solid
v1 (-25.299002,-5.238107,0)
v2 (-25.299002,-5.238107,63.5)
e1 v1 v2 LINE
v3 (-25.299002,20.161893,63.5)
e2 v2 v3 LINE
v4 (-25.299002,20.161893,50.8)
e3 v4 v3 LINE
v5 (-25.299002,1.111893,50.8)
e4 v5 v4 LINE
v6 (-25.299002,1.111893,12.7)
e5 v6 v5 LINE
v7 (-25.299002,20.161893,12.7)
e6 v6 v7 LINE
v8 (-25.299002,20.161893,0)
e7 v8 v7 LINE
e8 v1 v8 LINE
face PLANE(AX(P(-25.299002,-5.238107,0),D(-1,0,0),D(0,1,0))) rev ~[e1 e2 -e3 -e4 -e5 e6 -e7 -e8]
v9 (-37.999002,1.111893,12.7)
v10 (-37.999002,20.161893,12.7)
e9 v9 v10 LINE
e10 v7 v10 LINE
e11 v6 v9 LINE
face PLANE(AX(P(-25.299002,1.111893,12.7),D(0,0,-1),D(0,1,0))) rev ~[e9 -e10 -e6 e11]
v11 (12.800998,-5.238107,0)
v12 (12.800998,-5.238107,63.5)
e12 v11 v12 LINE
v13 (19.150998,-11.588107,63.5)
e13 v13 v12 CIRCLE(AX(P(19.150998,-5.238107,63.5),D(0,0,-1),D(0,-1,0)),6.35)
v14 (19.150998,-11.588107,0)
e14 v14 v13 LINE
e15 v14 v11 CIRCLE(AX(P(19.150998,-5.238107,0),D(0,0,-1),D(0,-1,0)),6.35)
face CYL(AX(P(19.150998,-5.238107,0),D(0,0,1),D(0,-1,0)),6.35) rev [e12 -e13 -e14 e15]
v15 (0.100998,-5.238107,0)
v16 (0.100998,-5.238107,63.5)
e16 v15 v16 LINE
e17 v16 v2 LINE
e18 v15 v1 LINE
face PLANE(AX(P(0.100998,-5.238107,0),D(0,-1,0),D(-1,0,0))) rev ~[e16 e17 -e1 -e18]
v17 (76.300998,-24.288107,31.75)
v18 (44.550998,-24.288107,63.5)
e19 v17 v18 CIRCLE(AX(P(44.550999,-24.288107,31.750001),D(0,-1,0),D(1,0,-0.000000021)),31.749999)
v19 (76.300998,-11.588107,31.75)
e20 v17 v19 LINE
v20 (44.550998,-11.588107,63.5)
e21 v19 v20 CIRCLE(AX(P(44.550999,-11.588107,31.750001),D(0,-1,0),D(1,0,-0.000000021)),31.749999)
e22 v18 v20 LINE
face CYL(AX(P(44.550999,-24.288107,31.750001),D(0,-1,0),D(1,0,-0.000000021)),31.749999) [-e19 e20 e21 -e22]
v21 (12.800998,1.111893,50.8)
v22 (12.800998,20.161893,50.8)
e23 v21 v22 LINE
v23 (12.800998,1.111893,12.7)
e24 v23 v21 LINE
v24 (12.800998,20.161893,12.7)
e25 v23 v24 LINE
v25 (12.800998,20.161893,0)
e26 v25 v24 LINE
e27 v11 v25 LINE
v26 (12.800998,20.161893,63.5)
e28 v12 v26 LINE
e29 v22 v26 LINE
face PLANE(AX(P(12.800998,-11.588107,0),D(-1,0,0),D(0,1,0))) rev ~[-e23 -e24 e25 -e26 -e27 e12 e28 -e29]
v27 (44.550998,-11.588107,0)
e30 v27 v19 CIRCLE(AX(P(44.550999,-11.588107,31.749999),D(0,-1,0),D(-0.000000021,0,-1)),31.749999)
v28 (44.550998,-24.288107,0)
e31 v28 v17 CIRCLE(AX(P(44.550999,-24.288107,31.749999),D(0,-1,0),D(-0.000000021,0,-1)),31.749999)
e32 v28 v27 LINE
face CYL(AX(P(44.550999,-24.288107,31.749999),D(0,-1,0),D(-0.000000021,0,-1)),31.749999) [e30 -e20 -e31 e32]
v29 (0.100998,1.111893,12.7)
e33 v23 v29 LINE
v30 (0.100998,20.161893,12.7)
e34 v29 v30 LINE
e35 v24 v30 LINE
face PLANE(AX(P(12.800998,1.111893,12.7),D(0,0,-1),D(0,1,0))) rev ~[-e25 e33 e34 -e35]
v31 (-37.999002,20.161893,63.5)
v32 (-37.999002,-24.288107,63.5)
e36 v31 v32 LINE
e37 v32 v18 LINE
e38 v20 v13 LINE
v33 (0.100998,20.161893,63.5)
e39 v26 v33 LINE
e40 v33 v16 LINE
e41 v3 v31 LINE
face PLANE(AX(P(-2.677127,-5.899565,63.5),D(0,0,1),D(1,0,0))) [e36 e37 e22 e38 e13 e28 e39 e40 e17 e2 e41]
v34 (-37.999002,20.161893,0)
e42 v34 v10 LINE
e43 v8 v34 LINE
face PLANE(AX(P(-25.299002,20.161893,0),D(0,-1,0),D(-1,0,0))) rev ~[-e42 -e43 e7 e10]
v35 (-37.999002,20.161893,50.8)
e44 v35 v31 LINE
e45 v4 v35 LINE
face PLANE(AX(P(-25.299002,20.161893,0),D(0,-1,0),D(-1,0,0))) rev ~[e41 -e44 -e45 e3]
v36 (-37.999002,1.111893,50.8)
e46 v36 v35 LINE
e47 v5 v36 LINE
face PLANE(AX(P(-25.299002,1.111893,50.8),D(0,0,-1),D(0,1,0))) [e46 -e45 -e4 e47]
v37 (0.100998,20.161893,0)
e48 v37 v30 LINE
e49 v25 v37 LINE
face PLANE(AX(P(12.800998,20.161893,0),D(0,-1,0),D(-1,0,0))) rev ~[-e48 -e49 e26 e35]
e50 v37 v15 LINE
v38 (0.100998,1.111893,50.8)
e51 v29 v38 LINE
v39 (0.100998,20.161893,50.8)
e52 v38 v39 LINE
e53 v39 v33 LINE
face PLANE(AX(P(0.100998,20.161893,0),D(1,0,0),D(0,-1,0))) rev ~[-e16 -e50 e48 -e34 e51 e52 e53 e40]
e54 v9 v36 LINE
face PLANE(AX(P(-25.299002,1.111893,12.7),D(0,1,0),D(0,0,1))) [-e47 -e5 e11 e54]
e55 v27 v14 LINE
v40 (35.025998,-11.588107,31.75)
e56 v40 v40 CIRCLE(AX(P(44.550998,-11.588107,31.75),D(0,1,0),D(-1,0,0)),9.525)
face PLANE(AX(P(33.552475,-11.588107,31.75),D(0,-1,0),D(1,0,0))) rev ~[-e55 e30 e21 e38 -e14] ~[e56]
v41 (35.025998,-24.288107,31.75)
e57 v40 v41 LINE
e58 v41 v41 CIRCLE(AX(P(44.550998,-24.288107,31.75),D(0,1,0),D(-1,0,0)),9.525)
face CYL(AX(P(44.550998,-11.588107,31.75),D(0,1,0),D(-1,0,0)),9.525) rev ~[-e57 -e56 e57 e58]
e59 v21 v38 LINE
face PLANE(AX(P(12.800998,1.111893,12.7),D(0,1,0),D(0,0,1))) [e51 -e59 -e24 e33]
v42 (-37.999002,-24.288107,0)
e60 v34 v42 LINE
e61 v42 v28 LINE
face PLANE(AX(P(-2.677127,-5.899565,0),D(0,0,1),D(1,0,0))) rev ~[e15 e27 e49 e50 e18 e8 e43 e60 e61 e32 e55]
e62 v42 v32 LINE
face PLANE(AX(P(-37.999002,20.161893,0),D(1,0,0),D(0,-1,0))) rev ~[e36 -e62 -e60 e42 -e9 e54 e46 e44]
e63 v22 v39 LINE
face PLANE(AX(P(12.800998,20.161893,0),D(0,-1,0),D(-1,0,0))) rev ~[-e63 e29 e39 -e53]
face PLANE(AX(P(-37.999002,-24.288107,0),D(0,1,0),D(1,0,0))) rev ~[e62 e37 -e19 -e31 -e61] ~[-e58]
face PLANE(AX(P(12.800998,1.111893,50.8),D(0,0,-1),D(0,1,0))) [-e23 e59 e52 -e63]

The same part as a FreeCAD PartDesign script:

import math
import FreeCAD as App
import Part
import Sketcher

V = App.Vector
Q = App.Units.Quantity


def edges_at(feature, points):
    """Names of the edges that pass closest to the given points."""
    edges = feature.Shape.Edges
    near = lambda p: min(range(len(edges)), key=lambda i: edges[i].distToShape(Part.Vertex(*p))[0])
    return sorted({f"Edge{near(p) + 1}" for p in points})


def add_polygon(sketch, points):
    """Adds a closed chain of lines whose ends are joined by coincident constraints."""
    first, n = sketch.GeometryCount, len(points)
    for a, b in zip(points, points[1:] + points[:1]):
        sketch.addGeometry(Part.LineSegment(App.Vector(*a, 0), App.Vector(*b, 0)), False)
    for i in range(n):
        sketch.addConstraint(Sketcher.Constraint("Coincident", first + i, 2, first + (i + 1) % n, 1))

doc = App.newDocument("Part")
body = doc.addObject("PartDesign::Body", "Body")

# Sketch on XY plane
sketch1 = doc.addObject("Sketcher::SketchObject", "Sketch")
body.addObject(sketch1)
sketch1.AttachmentSupport = (doc.XY_Plane, [""])
sketch1.MapMode = "FlatFace"
add_polygon(sketch1, [(-25, 20), (-38, 20), (-38, -24), (45, -24), (45, -12), (13, -12), (13, 20), (0, 20), (0, -5), (-25, -5)])  # lines 0-9
sketch1.addConstraint(Sketcher.Constraint("Horizontal", 0))
sketch1.addConstraint(Sketcher.Constraint("Vertical", 1))
sketch1.addConstraint(Sketcher.Constraint("Horizontal", 2))
sketch1.addConstraint(Sketcher.Constraint("Vertical", 3))
sketch1.addConstraint(Sketcher.Constraint("Horizontal", 4))
sketch1.addConstraint(Sketcher.Constraint("Vertical", 5))
sketch1.addConstraint(Sketcher.Constraint("Horizontal", 6))
sketch1.addConstraint(Sketcher.Constraint("Vertical", 7))
sketch1.addConstraint(Sketcher.Constraint("Horizontal", 8))
sketch1.addConstraint(Sketcher.Constraint("Vertical", 9))
sketch1.addConstraint(Sketcher.Constraint("Horizontal", 0, 2, 5, 2))
sketch1.addConstraint(Sketcher.Constraint("Equal", 0, 6))
sketch1.addConstraint(Sketcher.Constraint("Equal", 6, 3))
sketch1.addConstraint(Sketcher.Constraint("Equal", 4, 5))
sketch1.addConstraint(Sketcher.Constraint("Equal", 8, 7))
sketch1.addConstraint(Sketcher.Constraint("DistanceX", 8, 2, 8, 1, Q("1 in")))
sketch1.addConstraint(Sketcher.Constraint("DistanceX", 0, 2, 0, 1, Q("0.5 in")))
sketch1.addConstraint(Sketcher.Constraint("DistanceX", 2, 1, 2, 2, Q("3.25 in")))
sketch1.addConstraint(Sketcher.Constraint("DistanceX", 0, 2, -1, 1, 37.999002))
sketch1.addConstraint(Sketcher.Constraint("DistanceY", -1, 1, 0, 2, 20.161893))
pad1 = doc.addObject("PartDesign::Pad", "Pad")
body.addObject(pad1)
pad1.Profile = sketch1
pad1.Length = Q("2.5 in")

# Sketch on XZ plane
sketch2 = doc.addObject("Sketcher::SketchObject", "Sketch001")
body.addObject(sketch2)
sketch2.AttachmentSupport = (doc.XZ_Plane, [""])
sketch2.MapMode = "FlatFace"
sketch2.AttachmentOffset = App.Placement(V(0, 0, 24.288107), App.Rotation())
sketch2.addGeometry(Part.ArcOfCircle(Part.Circle(V(45, 32, 0), V(0, 0, 1), 32), math.radians(90), math.radians(270)), False)
sketch2.addGeometry(Part.ArcOfCircle(Part.Circle(V(45, 32, 0), V(0, 0, 1), 32), math.radians(-90), math.radians(0)), False)
sketch2.addGeometry(Part.ArcOfCircle(Part.Circle(V(45, 32, 0), V(0, 0, 1), 32), math.radians(0), math.radians(90)), False)
sketch2.addConstraint(Sketcher.Constraint("Tangent", 0, 2, 1, 1))
sketch2.addConstraint(Sketcher.Constraint("Tangent", 1, 2, 2, 1))
sketch2.addConstraint(Sketcher.Constraint("Tangent", 2, 2, 0, 1))
sketch2.addConstraint(Sketcher.Constraint("PointOnObject", 0, 2, -1))
sketch2.addConstraint(Sketcher.Constraint("Horizontal", 2, 3, 1, 2))
sketch2.addConstraint(Sketcher.Constraint("Vertical", 2, 3, 0, 2))
sketch2.addConstraint(Sketcher.Constraint("Vertical", 0, 2, 2, 2))
sketch2.addConstraint(Sketcher.Constraint("Radius", 0, Q("1.25 in")))
sketch2.addConstraint(Sketcher.Constraint("DistanceX", -1, 1, 1, 3, 44.550999))
pad2 = doc.addObject("PartDesign::Pad", "Pad001")
body.addObject(pad2)
pad2.Profile = sketch2
pad2.Length = Q("0.5 in")
pad2.Reversed = True

# Sketch on XZ plane
sketch3 = doc.addObject("Sketcher::SketchObject", "Sketch002")
body.addObject(sketch3)
sketch3.AttachmentSupport = (doc.XZ_Plane, [""])
sketch3.MapMode = "FlatFace"
sketch3.AttachmentOffset = App.Placement(V(0, 0, 11.588107), App.Rotation())
sketch3.addGeometry(Part.Circle(V(45, 32, 0), V(0, 0, 1), 10), False)
sketch3.addConstraint(Sketcher.Constraint("Diameter", 0, Q("0.75 in")))
sketch3.addConstraint(Sketcher.Constraint("DistanceY", -1, 1, 0, 3, Q("1.25 in")))
sketch3.addConstraint(Sketcher.Constraint("DistanceX", -1, 1, 0, 3, 44.550998))
pocket1 = doc.addObject("PartDesign::Pocket", "Pocket")
body.addObject(pocket1)
pocket1.Profile = sketch3
pocket1.Length = Q("1 in")
pocket1.Reversed = True

# Sketch on YZ plane
sketch4 = doc.addObject("Sketcher::SketchObject", "Sketch003")
body.addObject(sketch4)
sketch4.AttachmentSupport = (doc.YZ_Plane, [""])
sketch4.MapMode = "FlatFace"
sketch4.AttachmentOffset = App.Placement(V(0, 0, 12.800998), App.Rotation())
add_polygon(sketch4, [(1, 51), (1, 13), (20, 13), (20, 51)])  # lines 0-3
sketch4.addConstraint(Sketcher.Constraint("Vertical", 0))
sketch4.addConstraint(Sketcher.Constraint("Horizontal", 1))
sketch4.addConstraint(Sketcher.Constraint("Vertical", 2))
sketch4.addConstraint(Sketcher.Constraint("Horizontal", 3))
sketch4.addConstraint(Sketcher.Constraint("DistanceY", 0, 2, 0, 1, Q("1.5 in")))
sketch4.addConstraint(Sketcher.Constraint("DistanceY", -1, 1, 2, 2, Q("2 in")))
sketch4.addConstraint(Sketcher.Constraint("DistanceX", 1, 1, 1, 2, Q("0.75 in")))
sketch4.addConstraint(Sketcher.Constraint("DistanceX", -1, 1, 0, 2, 1.111893))
pocket2 = doc.addObject("PartDesign::Pocket", "Pocket001")
body.addObject(pocket2)
pocket2.Profile = sketch4
pocket2.Length = Q("1 in")

# Sketch on YZ plane
sketch5 = doc.addObject("Sketcher::SketchObject", "Sketch004")
body.addObject(sketch5)
sketch5.AttachmentSupport = (doc.YZ_Plane, [""])
sketch5.MapMode = "FlatFace"
sketch5.AttachmentOffset = App.Placement(V(0, 0, -25.299002), App.Rotation())
add_polygon(sketch5, [(1, 51), (1, 13), (20, 13), (20, 51)])  # lines 0-3
sketch5.addConstraint(Sketcher.Constraint("Vertical", 0))
sketch5.addConstraint(Sketcher.Constraint("Horizontal", 1))
sketch5.addConstraint(Sketcher.Constraint("Vertical", 2))
sketch5.addConstraint(Sketcher.Constraint("Horizontal", 3))
sketch5.addConstraint(Sketcher.Constraint("DistanceY", 0, 2, 0, 1, Q("1.5 in")))
sketch5.addConstraint(Sketcher.Constraint("DistanceY", -1, 1, 2, 2, Q("2 in")))
sketch5.addConstraint(Sketcher.Constraint("DistanceX", 1, 1, 1, 2, Q("0.75 in")))
sketch5.addConstraint(Sketcher.Constraint("DistanceX", -1, 1, 0, 2, 1.111893))
pocket3 = doc.addObject("PartDesign::Pocket", "Pocket002")
body.addObject(pocket3)
pocket3.Profile = sketch5
pocket3.Length = Q("1 in")
doc.recompute()

fillet = doc.addObject("PartDesign::Fillet", "Fillet")
body.addObject(fillet)
fillet.Base = (pocket3, edges_at(pocket3, [(12.801, -11.588, 31.75)]))
fillet.Radius = Q("0.25 in")

doc.recompute()
